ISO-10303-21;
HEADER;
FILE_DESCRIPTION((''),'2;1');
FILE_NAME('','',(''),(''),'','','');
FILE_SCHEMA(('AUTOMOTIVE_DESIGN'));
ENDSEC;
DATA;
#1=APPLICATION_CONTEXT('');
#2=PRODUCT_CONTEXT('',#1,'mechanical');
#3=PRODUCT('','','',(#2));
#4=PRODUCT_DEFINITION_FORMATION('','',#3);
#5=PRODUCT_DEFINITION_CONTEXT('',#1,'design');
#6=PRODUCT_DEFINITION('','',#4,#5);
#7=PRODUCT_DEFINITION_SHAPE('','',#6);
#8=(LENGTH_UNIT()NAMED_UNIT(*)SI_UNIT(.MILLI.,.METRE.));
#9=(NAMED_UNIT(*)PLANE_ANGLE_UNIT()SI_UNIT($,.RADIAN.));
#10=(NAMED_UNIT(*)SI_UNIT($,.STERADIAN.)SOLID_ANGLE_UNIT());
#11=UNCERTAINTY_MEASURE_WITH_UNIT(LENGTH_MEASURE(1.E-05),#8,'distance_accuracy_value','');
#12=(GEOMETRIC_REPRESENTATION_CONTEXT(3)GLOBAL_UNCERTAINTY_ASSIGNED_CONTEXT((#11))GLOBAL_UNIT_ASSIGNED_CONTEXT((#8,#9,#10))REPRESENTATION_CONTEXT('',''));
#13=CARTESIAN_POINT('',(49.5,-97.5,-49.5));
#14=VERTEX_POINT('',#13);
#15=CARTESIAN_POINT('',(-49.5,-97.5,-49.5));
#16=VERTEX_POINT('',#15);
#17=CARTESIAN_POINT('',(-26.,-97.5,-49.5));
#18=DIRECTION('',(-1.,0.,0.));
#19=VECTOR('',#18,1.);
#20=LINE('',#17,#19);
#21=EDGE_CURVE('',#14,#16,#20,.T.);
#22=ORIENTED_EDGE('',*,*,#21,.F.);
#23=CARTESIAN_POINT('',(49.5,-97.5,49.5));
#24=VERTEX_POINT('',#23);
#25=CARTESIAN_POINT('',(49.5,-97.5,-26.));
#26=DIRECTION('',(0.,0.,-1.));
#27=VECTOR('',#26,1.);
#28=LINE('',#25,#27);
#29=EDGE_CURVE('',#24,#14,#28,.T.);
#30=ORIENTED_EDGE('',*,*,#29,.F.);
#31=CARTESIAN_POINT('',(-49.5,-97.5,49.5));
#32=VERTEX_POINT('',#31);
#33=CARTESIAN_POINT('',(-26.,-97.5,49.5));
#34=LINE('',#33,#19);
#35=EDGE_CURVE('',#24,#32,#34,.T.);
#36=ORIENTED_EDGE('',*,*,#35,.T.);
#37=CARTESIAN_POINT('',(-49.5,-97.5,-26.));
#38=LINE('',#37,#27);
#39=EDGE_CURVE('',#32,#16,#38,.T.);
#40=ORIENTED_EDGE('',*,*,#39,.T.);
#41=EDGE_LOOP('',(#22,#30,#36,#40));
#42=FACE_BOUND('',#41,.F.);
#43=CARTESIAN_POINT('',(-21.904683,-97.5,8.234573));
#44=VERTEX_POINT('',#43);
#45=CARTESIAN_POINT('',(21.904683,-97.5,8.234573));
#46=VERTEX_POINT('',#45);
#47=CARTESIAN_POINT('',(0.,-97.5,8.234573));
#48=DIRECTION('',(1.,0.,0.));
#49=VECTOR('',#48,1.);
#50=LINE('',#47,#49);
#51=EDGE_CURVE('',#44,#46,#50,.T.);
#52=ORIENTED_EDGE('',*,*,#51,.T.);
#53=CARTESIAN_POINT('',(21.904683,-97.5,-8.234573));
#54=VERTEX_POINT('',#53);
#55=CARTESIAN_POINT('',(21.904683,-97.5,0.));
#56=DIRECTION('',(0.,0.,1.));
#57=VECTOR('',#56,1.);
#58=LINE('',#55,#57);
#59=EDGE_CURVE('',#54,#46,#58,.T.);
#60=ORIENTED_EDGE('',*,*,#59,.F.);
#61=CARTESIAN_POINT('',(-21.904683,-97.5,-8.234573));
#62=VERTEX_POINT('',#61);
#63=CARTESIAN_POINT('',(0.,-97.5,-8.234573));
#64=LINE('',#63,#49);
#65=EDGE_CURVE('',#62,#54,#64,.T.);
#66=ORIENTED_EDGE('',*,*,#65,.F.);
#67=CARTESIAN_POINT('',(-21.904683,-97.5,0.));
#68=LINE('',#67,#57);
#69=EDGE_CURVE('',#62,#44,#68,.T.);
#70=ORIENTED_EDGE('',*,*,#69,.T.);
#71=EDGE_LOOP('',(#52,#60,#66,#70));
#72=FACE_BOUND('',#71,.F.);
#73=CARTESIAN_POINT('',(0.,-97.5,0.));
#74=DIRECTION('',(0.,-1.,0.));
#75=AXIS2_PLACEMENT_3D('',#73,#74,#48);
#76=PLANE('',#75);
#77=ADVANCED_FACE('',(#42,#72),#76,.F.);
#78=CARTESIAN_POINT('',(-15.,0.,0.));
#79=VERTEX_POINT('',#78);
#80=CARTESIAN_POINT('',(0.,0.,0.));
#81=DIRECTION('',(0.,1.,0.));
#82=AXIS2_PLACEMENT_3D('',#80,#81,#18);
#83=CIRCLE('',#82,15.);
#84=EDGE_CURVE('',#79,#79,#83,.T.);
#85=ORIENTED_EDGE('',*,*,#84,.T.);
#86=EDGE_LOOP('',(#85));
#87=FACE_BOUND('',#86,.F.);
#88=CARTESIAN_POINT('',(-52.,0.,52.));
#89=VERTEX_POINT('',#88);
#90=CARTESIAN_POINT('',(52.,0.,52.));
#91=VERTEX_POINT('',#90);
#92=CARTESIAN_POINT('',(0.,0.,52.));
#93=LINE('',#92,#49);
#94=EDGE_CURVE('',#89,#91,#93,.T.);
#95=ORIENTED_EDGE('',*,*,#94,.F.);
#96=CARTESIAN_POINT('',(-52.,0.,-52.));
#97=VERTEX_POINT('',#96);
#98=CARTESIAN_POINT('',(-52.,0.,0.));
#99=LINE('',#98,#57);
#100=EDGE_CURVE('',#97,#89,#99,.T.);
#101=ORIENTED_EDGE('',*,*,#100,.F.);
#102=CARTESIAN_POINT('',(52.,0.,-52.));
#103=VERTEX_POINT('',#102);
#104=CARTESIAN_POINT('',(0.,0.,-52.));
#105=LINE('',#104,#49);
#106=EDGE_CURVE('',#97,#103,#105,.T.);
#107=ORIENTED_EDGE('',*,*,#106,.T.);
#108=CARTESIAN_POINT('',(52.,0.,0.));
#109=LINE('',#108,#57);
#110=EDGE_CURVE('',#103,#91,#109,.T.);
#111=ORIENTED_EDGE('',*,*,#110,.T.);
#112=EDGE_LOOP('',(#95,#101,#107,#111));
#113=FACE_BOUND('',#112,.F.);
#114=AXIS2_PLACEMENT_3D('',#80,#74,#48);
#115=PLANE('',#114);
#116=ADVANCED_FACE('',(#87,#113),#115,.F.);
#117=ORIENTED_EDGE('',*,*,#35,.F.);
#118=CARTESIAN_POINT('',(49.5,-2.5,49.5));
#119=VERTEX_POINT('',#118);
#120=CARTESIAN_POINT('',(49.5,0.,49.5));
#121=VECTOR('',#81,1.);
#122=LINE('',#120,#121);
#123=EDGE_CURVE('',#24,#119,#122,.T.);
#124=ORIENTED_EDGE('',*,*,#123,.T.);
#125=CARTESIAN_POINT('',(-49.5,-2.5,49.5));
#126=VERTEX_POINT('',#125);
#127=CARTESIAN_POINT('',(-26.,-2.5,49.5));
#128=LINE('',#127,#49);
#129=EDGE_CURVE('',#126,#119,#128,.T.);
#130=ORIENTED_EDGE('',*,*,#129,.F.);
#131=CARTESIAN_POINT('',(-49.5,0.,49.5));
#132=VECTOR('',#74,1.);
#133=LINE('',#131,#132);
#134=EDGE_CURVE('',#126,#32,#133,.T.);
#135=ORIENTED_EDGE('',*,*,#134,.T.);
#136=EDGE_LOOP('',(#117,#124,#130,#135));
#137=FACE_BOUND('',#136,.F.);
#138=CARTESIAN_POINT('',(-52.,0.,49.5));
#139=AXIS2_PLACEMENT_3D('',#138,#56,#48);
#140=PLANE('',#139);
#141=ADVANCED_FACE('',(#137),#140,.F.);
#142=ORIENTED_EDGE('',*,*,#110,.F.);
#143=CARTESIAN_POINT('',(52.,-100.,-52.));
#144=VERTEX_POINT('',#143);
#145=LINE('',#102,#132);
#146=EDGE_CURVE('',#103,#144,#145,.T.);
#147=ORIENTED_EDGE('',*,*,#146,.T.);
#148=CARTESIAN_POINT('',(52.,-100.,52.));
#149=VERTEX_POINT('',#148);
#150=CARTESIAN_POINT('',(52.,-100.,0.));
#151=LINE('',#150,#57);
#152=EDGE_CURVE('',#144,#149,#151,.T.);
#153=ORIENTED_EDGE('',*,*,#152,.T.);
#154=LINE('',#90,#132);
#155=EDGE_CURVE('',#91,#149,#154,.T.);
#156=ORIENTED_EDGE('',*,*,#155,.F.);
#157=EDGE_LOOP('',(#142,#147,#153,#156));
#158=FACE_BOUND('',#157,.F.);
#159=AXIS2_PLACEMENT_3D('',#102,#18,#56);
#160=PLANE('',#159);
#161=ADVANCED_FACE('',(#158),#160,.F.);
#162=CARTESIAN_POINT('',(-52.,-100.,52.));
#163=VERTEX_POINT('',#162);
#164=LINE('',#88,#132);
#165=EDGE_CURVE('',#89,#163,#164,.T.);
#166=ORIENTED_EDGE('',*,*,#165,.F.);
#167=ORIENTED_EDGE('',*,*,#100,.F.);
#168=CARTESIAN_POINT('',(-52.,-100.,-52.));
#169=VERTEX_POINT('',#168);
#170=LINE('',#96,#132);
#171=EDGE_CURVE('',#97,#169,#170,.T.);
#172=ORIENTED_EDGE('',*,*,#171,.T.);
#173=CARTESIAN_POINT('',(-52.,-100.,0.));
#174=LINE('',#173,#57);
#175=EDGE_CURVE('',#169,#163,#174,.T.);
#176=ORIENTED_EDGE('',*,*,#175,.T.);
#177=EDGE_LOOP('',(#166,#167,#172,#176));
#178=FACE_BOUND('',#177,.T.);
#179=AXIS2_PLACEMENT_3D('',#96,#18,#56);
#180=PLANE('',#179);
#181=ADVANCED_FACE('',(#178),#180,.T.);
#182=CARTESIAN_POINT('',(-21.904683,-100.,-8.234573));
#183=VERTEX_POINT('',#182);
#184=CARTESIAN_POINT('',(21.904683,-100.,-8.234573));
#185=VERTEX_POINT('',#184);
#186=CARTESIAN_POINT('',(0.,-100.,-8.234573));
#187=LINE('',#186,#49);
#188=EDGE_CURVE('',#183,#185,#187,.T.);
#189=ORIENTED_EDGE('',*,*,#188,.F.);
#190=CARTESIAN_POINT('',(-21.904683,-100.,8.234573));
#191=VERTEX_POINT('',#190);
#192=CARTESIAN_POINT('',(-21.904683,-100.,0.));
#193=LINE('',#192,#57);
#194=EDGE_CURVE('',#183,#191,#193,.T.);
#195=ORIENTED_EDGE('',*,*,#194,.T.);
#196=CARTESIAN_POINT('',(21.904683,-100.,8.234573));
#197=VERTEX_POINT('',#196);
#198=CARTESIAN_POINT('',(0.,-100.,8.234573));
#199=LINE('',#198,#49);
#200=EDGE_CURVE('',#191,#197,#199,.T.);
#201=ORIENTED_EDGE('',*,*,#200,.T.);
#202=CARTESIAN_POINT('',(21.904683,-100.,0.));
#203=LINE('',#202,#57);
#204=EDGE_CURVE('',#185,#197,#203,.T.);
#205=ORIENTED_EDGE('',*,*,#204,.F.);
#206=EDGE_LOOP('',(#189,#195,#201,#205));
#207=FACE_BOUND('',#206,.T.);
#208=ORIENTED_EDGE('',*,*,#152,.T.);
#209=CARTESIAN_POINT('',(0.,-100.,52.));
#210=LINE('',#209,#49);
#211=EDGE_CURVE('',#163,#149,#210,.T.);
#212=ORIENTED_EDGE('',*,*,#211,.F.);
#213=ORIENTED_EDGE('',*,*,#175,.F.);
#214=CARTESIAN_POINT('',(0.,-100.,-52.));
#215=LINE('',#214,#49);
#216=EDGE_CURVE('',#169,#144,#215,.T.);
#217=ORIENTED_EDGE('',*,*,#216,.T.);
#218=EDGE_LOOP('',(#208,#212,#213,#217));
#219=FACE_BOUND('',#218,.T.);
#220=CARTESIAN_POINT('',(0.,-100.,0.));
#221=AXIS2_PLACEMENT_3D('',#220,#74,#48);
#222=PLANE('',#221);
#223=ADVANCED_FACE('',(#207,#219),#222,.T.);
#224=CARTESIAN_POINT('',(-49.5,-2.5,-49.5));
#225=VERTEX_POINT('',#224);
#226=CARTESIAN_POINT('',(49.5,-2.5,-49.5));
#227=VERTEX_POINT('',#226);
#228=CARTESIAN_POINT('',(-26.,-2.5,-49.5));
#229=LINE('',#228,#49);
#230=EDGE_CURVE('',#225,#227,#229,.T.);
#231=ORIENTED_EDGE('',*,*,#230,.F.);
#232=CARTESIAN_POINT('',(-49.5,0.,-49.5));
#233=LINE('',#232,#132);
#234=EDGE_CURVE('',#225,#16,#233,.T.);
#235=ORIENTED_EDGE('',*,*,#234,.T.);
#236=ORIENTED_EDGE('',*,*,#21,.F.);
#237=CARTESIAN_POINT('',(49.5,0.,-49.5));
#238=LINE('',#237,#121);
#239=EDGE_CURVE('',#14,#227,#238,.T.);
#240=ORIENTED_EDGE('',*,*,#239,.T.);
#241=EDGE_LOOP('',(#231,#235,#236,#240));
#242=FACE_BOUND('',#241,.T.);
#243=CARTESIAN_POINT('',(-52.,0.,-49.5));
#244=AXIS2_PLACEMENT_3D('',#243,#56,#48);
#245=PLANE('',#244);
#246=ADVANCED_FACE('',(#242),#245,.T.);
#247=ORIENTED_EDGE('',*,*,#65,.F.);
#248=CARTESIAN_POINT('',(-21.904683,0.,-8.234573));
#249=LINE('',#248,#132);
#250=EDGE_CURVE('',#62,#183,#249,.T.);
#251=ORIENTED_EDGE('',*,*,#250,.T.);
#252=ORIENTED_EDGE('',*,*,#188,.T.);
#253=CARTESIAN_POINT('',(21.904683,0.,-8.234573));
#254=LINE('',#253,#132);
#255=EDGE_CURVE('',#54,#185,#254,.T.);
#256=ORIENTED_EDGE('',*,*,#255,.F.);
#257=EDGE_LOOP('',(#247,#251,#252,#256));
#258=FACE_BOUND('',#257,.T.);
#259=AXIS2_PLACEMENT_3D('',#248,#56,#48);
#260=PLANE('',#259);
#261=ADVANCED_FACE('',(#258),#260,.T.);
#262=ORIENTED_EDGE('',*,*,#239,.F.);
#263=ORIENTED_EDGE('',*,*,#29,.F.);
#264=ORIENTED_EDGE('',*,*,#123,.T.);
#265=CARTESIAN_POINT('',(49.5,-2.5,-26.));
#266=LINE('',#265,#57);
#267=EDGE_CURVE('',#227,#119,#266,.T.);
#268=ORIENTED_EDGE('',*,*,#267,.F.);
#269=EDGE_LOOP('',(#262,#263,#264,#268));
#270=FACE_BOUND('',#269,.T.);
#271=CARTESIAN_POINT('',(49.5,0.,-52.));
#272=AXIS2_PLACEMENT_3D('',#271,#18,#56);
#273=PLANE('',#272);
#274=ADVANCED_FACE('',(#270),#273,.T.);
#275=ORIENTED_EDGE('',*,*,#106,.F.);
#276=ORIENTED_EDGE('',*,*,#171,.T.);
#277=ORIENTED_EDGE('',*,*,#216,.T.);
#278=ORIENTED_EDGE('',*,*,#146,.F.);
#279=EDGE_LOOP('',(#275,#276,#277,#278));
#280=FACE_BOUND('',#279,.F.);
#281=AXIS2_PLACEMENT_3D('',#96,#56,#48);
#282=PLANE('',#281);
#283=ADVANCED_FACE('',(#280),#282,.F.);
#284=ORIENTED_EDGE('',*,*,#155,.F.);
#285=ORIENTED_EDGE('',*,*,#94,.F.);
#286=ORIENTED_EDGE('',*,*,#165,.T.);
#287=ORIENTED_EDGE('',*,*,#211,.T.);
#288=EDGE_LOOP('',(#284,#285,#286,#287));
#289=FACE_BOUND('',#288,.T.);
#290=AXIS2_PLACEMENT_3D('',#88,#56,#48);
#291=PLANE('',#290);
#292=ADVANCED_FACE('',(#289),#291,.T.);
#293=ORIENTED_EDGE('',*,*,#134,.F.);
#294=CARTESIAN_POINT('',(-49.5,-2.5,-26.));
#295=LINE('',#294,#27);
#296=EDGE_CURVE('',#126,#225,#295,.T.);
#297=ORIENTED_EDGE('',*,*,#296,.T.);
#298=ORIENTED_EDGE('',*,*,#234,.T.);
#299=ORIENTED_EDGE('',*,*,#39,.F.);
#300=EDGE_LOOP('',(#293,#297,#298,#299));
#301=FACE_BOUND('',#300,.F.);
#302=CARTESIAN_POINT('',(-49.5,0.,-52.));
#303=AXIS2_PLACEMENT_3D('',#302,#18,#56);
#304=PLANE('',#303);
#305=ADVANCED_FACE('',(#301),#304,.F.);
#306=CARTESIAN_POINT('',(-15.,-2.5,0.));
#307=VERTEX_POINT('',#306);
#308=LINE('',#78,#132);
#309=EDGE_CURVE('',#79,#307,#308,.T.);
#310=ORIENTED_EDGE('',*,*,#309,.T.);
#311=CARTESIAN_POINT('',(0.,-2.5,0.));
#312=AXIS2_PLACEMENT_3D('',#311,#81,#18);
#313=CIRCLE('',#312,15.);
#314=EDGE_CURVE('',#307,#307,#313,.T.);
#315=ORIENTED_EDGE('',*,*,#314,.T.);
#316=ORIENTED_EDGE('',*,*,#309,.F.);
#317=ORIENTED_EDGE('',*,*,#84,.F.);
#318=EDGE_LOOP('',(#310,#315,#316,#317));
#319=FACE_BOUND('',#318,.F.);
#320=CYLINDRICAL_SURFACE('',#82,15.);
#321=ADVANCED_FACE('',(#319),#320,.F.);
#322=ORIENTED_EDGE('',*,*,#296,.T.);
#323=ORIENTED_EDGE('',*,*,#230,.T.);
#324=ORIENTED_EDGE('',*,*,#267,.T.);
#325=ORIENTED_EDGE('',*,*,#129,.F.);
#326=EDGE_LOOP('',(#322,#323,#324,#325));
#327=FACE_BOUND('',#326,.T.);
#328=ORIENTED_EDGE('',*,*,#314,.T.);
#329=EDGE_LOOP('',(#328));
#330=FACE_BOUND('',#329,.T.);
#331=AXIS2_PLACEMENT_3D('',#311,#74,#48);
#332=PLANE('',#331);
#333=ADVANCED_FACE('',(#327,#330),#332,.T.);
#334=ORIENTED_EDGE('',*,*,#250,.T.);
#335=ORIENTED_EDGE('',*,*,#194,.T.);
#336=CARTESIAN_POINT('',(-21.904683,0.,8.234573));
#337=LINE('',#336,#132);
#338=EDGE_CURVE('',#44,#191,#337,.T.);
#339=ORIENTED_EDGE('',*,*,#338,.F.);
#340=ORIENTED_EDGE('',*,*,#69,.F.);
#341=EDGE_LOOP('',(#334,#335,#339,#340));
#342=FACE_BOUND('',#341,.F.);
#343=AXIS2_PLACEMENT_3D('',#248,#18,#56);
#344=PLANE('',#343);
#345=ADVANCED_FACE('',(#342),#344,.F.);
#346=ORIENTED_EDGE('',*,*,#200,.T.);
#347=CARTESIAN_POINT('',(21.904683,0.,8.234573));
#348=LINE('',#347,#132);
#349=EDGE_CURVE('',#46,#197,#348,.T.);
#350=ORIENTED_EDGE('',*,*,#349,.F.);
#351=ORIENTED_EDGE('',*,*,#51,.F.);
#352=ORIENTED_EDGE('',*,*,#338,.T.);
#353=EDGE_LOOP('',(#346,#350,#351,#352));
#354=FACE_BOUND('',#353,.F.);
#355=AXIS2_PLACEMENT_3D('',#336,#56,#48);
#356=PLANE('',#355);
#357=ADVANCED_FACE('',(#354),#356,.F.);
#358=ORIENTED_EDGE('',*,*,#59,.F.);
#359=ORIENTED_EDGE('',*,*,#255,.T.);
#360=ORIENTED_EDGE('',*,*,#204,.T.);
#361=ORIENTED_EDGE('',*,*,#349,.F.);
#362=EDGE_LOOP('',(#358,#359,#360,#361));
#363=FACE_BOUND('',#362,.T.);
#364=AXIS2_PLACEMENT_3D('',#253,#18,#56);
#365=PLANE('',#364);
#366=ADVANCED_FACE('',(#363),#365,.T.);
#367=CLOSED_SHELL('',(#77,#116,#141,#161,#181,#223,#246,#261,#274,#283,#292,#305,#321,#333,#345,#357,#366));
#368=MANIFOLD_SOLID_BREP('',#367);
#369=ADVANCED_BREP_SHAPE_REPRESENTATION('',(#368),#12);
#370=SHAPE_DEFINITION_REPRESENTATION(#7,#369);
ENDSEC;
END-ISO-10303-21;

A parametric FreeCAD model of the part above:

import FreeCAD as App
import Part
import Sketcher
from FreeCAD import Vector
Q = App.Units.Quantity


def faces_at(feature, points):
    """Names of the faces that lie closest to the given points."""
    faces = feature.Shape.Faces
    near = lambda p: min(range(len(faces)), key=lambda i: faces[i].distToShape(Part.Vertex(*p))[0])
    return sorted({f"Face{near(p) + 1}" for p in points})


def add_polygon(sketch, points):
    """Adds a closed chain of lines whose ends are joined by coincident constraints."""
    first, n = sketch.GeometryCount, len(points)
    for a, b in zip(points, points[1:] + points[:1]):
        sketch.addGeometry(Part.LineSegment(App.Vector(*a, 0), App.Vector(*b, 0)), False)
    for i in range(n):
        sketch.addConstraint(Sketcher.Constraint("Coincident", first + i, 2, first + (i + 1) % n, 1))

doc = App.newDocument("Part")
body = doc.addObject("PartDesign::Body", "Body")

# Sketch on XZ plane
sketch1 = body.newObject("Sketcher::SketchObject", "Sketch")
sketch1.AttachmentSupport = (doc.getObject("XZ_Plane"), [""])
sketch1.MapMode = "FlatFace"
add_polygon(sketch1, [(-52, 52), (-52, -52), (52, -52), (52, 52)])  # lines 0-3
add_polygon(sketch1, [(22, -8), (-22, -8), (-22, 8), (22, 8)])  # lines 4-7
sketch1.addConstraint([
    Sketcher.Constraint("Vertical", 0),
    Sketcher.Constraint("Horizontal", 1),
    Sketcher.Constraint("Vertical", 2),
    Sketcher.Constraint("Horizontal", 3),
    Sketcher.Constraint("Horizontal", 4),
    Sketcher.Constraint("Vertical", 5),
    Sketcher.Constraint("Horizontal", 6),
    Sketcher.Constraint("Vertical", 7),
    Sketcher.Constraint("Symmetric", 0, 2, 2, 2, -1, 1),
    Sketcher.Constraint("Symmetric", 4, 2, 6, 2, -1, 1),
    Sketcher.Constraint("Equal", 3, 0),
    Sketcher.Constraint("DistanceX", 1, 1, 1, 2, Q("104 mm")),
    Sketcher.Constraint("DistanceX", 4, 2, 4, 1, Q("43.809365 mm")),
    Sketcher.Constraint("DistanceY", 5, 1, 5, 2, Q("16.469145 mm")),
])
pad1 = body.newObject("PartDesign::Pad", "Pad")
pad1.Profile = sketch1
pad1.Length = 100

# Sketch on XZ plane
sketch2 = body.newObject("Sketcher::SketchObject", "Sketch001")
sketch2.AttachmentSupport = (doc.getObject("XZ_Plane"), [""])
sketch2.MapMode = "FlatFace"
add_polygon(sketch2, [(-22, 8), (-22, -8), (22, -8), (22, 8)])  # lines 0-3
sketch2.addConstraint([
    Sketcher.Constraint("Vertical", 0),
    Sketcher.Constraint("Horizontal", 1),
    Sketcher.Constraint("Vertical", 2),
    Sketcher.Constraint("Horizontal", 3),
    Sketcher.Constraint("Symmetric", 0, 2, 2, 2, -1, 1),
    Sketcher.Constraint("DistanceX", 1, 1, 1, 2, Q("43.809365 mm")),
    Sketcher.Constraint("DistanceY", 0, 2, 0, 1, Q("16.469145 mm")),
])
pad2 = body.newObject("PartDesign::Pad", "Pad001")
pad2.Profile = sketch2
pad2.Length = 5
doc.recompute()

thickness = body.newObject("PartDesign::Thickness", "Thickness")
thickness.Base = (pad2, faces_at(pad2, [
    (0, -52.5, -8.235),
    (21.905, -52.5, 0),
    (0, -52.5, 8.235),
    (-21.905, -52.5, 0),
    (0, -5, 0),
]))
thickness.Value = 2.5
thickness.Reversed = True
thickness.Join = "Arc"

# Sketch on XZ plane
sketch3 = body.newObject("Sketcher::SketchObject", "Sketch002")
sketch3.AttachmentSupport = (doc.getObject("XZ_Plane"), [""])
sketch3.MapMode = "FlatFace"
sketch3.addGeometry(Part.Circle(Vector(0, 0, 0), Vector(0, 0, 1), 15), False)
sketch3.addConstraint([
    Sketcher.Constraint("Coincident", 0, 3, -1, 1),
    Sketcher.Constraint("Diameter", 0, Q("30 mm")),
])
pocket1 = body.newObject("PartDesign::Pocket", "Pocket")
pocket1.Profile = sketch3
pocket1.Length = 25
pocket1.Reversed = True

doc.recompute()
